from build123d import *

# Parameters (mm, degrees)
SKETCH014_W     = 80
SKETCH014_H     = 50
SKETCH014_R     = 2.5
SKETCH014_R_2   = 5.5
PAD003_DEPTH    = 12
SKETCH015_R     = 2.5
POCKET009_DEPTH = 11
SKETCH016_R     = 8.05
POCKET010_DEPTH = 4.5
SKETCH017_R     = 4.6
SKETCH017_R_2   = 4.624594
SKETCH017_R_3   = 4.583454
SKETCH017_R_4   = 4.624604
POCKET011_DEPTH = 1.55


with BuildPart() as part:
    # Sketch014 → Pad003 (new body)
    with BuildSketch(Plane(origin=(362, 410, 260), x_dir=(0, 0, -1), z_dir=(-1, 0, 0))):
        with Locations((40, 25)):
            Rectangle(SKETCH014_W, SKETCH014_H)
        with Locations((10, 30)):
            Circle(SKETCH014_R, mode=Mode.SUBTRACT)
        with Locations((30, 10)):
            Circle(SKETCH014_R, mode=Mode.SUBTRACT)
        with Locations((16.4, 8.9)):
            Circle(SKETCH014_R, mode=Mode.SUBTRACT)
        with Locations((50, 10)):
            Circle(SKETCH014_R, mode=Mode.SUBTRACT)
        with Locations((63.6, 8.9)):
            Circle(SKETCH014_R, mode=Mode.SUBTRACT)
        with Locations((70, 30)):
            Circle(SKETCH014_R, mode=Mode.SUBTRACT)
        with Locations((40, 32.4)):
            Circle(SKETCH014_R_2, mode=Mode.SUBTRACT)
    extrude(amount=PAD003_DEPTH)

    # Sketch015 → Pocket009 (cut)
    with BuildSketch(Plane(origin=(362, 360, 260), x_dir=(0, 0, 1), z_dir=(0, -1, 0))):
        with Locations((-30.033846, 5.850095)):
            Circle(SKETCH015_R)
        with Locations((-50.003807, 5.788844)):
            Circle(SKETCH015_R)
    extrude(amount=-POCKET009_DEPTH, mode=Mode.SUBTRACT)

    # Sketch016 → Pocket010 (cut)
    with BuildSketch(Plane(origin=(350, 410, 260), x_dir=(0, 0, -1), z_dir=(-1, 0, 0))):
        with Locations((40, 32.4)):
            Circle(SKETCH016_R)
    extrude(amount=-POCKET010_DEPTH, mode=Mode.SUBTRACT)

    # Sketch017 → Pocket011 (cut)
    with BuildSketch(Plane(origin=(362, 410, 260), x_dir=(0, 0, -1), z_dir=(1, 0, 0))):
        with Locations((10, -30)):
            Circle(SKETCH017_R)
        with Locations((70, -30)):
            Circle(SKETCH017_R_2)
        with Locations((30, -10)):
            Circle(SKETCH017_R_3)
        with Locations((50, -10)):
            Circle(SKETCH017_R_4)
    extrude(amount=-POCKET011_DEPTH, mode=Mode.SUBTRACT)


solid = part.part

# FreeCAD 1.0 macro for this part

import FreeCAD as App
import Part
import Sketcher

V = App.Vector

doc = App.newDocument("Part")
body = doc.addObject("PartDesign::Body", "Body")

sketch1 = body.newObject("Sketcher::SketchObject", "Sketch")
sketch1.AttachmentSupport = (doc.getObject("YZ_Plane"), [""])
sketch1.MapMode = "FlatFace"
sketch1.AttachmentOffset = App.Placement(V(0, 0, 362), App.Rotation())
sketch1.addGeometry(Part.LineSegment(V(360, 260, 0), V(410, 260, 0)), False)
sketch1.addGeometry(Part.LineSegment(V(410, 260, 0), V(410, 180, 0)), False)
sketch1.addGeometry(Part.LineSegment(V(410, 180, 0), V(360, 180, 0)), False)
sketch1.addGeometry(Part.LineSegment(V(360, 180, 0), V(360, 260, 0)), False)
sketch1.addGeometry(Part.Circle(V(401.1, 243.6, 0), V(0, 0, 1), 2.5), False)
sketch1.addGeometry(Part.Circle(V(400, 230, 0), V(0, 0, 1), 2.5), False)
sketch1.addGeometry(Part.Circle(V(400, 210, 0), V(0, 0, 1), 2.5), False)
sketch1.addGeometry(Part.Circle(V(401.1, 196.4, 0), V(0, 0, 1), 2.5), False)
sketch1.addGeometry(Part.Circle(V(380, 250, 0), V(0, 0, 1), 2.5), False)
sketch1.addGeometry(Part.Circle(V(380, 190, 0), V(0, 0, 1), 2.5), False)
sketch1.addGeometry(Part.Circle(V(377.6, 220, 0), V(0, 0, 1), 5.5), False)
sketch1.addConstraint(Sketcher.Constraint("Coincident", 0, 2, 1, 1))
sketch1.addConstraint(Sketcher.Constraint("Coincident", 1, 2, 2, 1))
sketch1.addConstraint(Sketcher.Constraint("Coincident", 2, 2, 3, 1))
sketch1.addConstraint(Sketcher.Constraint("Coincident", 3, 2, 0, 1))
sketch1.addConstraint(Sketcher.Constraint("Horizontal", 0))
sketch1.addConstraint(Sketcher.Constraint("Vertical", 1))
sketch1.addConstraint(Sketcher.Constraint("Horizontal", 2))
sketch1.addConstraint(Sketcher.Constraint("Vertical", 3))
sketch1.addConstraint(Sketcher.Constraint("Equal", 4, 5))
sketch1.addConstraint(Sketcher.Constraint("Equal", 5, 6))
sketch1.addConstraint(Sketcher.Constraint("Equal", 6, 7))
sketch1.addConstraint(Sketcher.Constraint("Equal", 7, 8))
sketch1.addConstraint(Sketcher.Constraint("Equal", 8, 9))
sketch1.addConstraint(Sketcher.Constraint("Vertical", 5, 3, 6, 3))
sketch1.addConstraint(Sketcher.Constraint("Vertical", 4, 3, 7, 3))
sketch1.addConstraint(Sketcher.Constraint("Vertical", 8, 3, 9, 3))
sketch1.addConstraint(Sketcher.Constraint("Diameter", 4, 5.0))
sketch1.addConstraint(Sketcher.Constraint("Diameter", 10, 11.0))
sketch1.addConstraint(Sketcher.Constraint("DistanceX", 0, 1, 0, 2, 50.0))
sketch1.addConstraint(Sketcher.Constraint("DistanceY", 1, 2, 1, 1, 80.0))
sketch1.addConstraint(Sketcher.Constraint("DistanceX", -1, 1, 5, 3, 400.0))
sketch1.addConstraint(Sketcher.Constraint("DistanceY", -1, 1, 5, 3, 230.0))
sketch1.addConstraint(Sketcher.Constraint("DistanceY", -1, 1, 6, 3, 210.0))
sketch1.addConstraint(Sketcher.Constraint("DistanceX", -1, 1, 8, 3, 380.0))
sketch1.addConstraint(Sketcher.Constraint("DistanceY", -1, 1, 8, 3, 250.0))
sketch1.addConstraint(Sketcher.Constraint("DistanceY", -1, 1, 9, 3, 190.0))
sketch1.addConstraint(Sketcher.Constraint("DistanceY", -1, 1, 10, 3, 220.0))
sketch1.addConstraint(Sketcher.Constraint("DistanceX", -1, 1, 0, 2, 410.0))
sketch1.addConstraint(Sketcher.Constraint("DistanceY", -1, 1, 0, 2, 260.0))
sketch1.addConstraint(Sketcher.Constraint("DistanceX", -1, 1, 4, 3, 401.1))
sketch1.addConstraint(Sketcher.Constraint("DistanceY", -1, 1, 4, 3, 243.6))
sketch1.addConstraint(Sketcher.Constraint("DistanceY", -1, 1, 7, 3, 196.4))
sketch1.addConstraint(Sketcher.Constraint("DistanceX", -1, 1, 10, 3, 377.6))
pad1 = body.newObject("PartDesign::Pad", "Pad")
pad1.Profile = sketch1
pad1.Length = 12
pad1.Reversed = True

sketch2 = body.newObject("Sketcher::SketchObject", "Sketch001")
sketch2.AttachmentSupport = (doc.getObject("XZ_Plane"), [""])
sketch2.MapMode = "FlatFace"
sketch2.AttachmentOffset = App.Placement(V(0, 0, -360), App.Rotation())
sketch2.addGeometry(Part.Circle(V(356.149905, 229.966154, 0), V(0, 0, 1), 2.5), False)
sketch2.addGeometry(Part.Circle(V(356.211156, 209.996193, 0), V(0, 0, 1), 2.5), False)
sketch2.addConstraint(Sketcher.Constraint("Equal", 0, 1))
sketch2.addConstraint(Sketcher.Constraint("Diameter", 0, 5.0))
sketch2.addConstraint(Sketcher.Constraint("DistanceX", 0, 3, 1, 3, 0.061251))
sketch2.addConstraint(Sketcher.Constraint("DistanceY", 1, 3, 0, 3, 19.969961))
sketch2.addConstraint(Sketcher.Constraint("DistanceX", -1, 1, 0, 3, 356.149905))
sketch2.addConstraint(Sketcher.Constraint("DistanceY", -1, 1, 0, 3, 229.966154))
pocket1 = body.newObject("PartDesign::Pocket", "Pocket")
pocket1.Profile = sketch2
pocket1.Length = 11

sketch3 = body.newObject("Sketcher::SketchObject", "Sketch002")
sketch3.AttachmentSupport = (doc.getObject("YZ_Plane"), [""])
sketch3.MapMode = "FlatFace"
sketch3.AttachmentOffset = App.Placement(V(0, 0, 350), App.Rotation())
sketch3.addGeometry(Part.Circle(V(377.6, 220, 0), V(0, 0, 1), 8.05), False)
sketch3.addConstraint(Sketcher.Constraint("Diameter", 0, 16.1))
sketch3.addConstraint(Sketcher.Constraint("DistanceY", -1, 1, 0, 3, 220.0))
sketch3.addConstraint(Sketcher.Constraint("DistanceX", -1, 1, 0, 3, 377.6))
pocket2 = body.newObject("PartDesign::Pocket", "Pocket001")
pocket2.Profile = sketch3
pocket2.Length = 4.5
pocket2.Reversed = True

sketch4 = body.newObject("Sketcher::SketchObject", "Sketch003")
sketch4.AttachmentSupport = (doc.getObject("YZ_Plane"), [""])
sketch4.MapMode = "FlatFace"
sketch4.AttachmentOffset = App.Placement(V(0, 0, 362), App.Rotation())
sketch4.addGeometry(Part.Circle(V(380, 250, 0), V(0, 0, 1), 4.6), False)
sketch4.addGeometry(Part.Circle(V(380, 190, 0), V(0, 0, 1), 4.624594), False)
sketch4.addGeometry(Part.Circle(V(400, 230, 0), V(0, 0, 1), 4.583454), False)
sketch4.addGeometry(Part.Circle(V(400, 210, 0), V(0, 0, 1), 4.624604), False)
sketch4.addConstraint(Sketcher.Constraint("Vertical", 0, 3, 1, 3))
sketch4.addConstraint(Sketcher.Constraint("Vertical", 2, 3, 3, 3))
sketch4.addConstraint(Sketcher.Constraint("Diameter", 0, 9.2))
sketch4.addConstraint(Sketcher.Constraint("DistanceX", -1, 1, 0, 3, 380.0))
sketch4.addConstraint(Sketcher.Constraint("DistanceY", -1, 1, 0, 3, 250.0))
sketch4.addConstraint(Sketcher.Constraint("DistanceY", -1, 1, 1, 3, 190.0))
sketch4.addConstraint(Sketcher.Constraint("DistanceX", -1, 1, 2, 3, 400.0))
sketch4.addConstraint(Sketcher.Constraint("DistanceY", -1, 1, 2, 3, 230.0))
sketch4.addConstraint(Sketcher.Constraint("DistanceY", -1, 1, 3, 3, 210.0))
sketch4.addConstraint(Sketcher.Constraint("Diameter", 1, 9.249188))
sketch4.addConstraint(Sketcher.Constraint("Diameter", 2, 9.166908))
sketch4.addConstraint(Sketcher.Constraint("Diameter", 3, 9.249208))
pocket3 = body.newObject("PartDesign::Pocket", "Pocket002")
pocket3.Profile = sketch4
pocket3.Length = 1.55

doc.recompute()
